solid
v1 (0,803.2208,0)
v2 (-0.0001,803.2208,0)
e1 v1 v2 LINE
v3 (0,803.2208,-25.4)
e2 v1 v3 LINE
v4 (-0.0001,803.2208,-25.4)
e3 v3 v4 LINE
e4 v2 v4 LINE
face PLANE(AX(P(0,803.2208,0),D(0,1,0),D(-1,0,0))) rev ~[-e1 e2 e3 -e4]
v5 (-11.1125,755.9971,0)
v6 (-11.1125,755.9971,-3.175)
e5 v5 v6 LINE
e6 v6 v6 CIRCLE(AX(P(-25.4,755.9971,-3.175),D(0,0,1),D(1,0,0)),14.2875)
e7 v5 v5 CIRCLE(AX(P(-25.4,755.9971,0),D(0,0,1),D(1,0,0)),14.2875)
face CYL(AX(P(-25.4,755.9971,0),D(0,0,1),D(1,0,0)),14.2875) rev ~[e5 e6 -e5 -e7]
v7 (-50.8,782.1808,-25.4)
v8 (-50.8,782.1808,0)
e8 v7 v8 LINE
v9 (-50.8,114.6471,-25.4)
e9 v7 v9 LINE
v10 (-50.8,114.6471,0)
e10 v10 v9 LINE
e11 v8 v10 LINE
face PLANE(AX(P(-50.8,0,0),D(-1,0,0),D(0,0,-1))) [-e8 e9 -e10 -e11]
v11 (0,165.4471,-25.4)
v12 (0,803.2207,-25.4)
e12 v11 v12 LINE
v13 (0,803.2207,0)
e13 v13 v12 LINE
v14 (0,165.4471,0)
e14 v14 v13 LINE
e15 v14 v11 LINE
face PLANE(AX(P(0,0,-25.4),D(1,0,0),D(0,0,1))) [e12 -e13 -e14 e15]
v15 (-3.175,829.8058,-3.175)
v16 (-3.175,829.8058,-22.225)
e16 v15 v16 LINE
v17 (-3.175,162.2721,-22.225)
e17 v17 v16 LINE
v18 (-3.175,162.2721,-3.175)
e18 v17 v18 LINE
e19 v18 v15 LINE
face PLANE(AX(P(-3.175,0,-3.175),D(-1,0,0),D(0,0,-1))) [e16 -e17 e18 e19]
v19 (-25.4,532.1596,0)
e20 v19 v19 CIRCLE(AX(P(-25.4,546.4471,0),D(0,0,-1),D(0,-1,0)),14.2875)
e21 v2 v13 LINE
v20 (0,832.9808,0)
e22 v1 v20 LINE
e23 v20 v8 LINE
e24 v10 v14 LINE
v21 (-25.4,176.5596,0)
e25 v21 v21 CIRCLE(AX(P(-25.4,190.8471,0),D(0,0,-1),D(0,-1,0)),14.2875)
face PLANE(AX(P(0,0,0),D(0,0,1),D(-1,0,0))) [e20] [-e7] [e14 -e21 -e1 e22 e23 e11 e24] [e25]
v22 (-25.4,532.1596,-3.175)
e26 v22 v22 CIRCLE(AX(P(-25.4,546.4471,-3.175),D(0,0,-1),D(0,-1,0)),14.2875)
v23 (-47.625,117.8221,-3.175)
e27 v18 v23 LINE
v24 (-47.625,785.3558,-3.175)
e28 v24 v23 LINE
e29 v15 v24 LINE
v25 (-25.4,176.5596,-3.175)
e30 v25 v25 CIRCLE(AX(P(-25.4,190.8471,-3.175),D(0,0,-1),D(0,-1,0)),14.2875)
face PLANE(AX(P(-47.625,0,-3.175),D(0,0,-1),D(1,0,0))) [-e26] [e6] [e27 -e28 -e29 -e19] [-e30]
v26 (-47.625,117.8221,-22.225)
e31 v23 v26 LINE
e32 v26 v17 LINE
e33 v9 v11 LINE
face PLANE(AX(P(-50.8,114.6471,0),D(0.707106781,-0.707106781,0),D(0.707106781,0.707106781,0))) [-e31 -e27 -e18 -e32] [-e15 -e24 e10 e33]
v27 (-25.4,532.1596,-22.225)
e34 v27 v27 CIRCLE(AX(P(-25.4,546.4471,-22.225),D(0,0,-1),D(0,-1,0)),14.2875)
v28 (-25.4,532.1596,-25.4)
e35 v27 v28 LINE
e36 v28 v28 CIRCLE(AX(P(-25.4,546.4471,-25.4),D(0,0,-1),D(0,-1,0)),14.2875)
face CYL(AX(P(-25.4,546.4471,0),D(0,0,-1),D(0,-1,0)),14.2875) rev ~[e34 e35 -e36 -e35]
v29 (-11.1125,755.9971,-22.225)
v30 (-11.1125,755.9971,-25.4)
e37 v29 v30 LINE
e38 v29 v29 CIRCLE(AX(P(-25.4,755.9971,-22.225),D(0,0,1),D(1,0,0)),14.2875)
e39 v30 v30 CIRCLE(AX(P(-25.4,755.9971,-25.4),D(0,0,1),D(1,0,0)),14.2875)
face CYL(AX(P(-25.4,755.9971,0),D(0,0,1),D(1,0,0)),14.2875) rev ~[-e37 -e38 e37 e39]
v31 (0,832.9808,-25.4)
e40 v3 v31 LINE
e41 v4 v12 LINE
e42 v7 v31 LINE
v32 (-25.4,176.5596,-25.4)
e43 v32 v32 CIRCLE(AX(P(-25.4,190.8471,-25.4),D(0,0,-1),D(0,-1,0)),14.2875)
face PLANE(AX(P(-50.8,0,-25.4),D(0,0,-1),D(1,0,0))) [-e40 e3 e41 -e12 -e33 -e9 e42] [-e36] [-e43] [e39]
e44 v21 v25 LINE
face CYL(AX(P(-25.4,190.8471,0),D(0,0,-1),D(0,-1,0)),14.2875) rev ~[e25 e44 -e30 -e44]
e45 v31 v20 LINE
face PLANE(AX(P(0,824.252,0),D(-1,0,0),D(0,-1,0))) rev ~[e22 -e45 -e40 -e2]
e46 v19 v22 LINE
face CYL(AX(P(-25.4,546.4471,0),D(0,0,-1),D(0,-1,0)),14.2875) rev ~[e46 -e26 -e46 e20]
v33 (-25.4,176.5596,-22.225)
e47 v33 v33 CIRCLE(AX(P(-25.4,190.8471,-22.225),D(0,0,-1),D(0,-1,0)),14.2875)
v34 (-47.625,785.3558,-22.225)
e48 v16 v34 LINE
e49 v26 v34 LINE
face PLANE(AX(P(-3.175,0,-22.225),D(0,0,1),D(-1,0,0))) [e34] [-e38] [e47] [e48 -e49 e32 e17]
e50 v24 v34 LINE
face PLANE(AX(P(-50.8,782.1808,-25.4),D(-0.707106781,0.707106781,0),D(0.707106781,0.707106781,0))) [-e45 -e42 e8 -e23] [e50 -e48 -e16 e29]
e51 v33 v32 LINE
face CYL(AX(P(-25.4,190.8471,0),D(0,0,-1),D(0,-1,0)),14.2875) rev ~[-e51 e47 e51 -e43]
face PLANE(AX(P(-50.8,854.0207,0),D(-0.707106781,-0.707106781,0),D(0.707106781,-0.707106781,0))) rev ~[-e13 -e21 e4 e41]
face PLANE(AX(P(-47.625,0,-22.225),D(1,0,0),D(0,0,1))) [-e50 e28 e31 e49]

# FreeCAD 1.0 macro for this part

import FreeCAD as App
import Part
import Sketcher
Q = App.Units.Quantity

doc = App.newDocument("Part")
params = doc.addObject("Spreadsheet::Sheet", "Params")
for row, (alias, value) in enumerate([
    ("sketch1_width", "2 in"),
    ("sketch1_height", "1 in"),
    ("pad1_length", "34.89 in"),
    ("sketch2_width", "2 in"),
    ("pocket1_length", "36 in"),
    ("pocket2_length", "1 in"),
    ("sketch4_width", "2 in"),
    ("pocket3_length", "1 in"),
    ("pocket4_length", "1 in"),
    ("pocket5_length", "1 in"),
    ("sketch7_diameter", "1.125 in"),
    ("hole_diameter", "1.125 in"),
    ("sketch8_diameter", "1.125 in"),
    ("hole2_diameter", "1.125 in"),
    ("sketch9_width", "0.828 in"),
    ("pad2_length", "1 in"),
    ("sketch10_width", "2 in"),
    ("sketch10_width2", "0.828 in"),
    ("pocket6_length", "1 in"),
    ("sketch11_height", "0.828 in"),
    ("sketch12_width", "1.75 in"),
    ("sketch12_height", "0.75 in"),
    ("pocket8_length", "100 in"),
    ("pad3_length", "1 in"),
    ("sketch14_width", "1.75 in"),
    ("sketch14_height", "0.75 in"),
    ("pocket9_length", "100 in"),
    ("sketch15_diameter", "1.125 in"),
    ("pocket10_length", "1 in"),
], start=1):
    params.set(f"A{row}", alias)
    params.set(f"B{row}", "=" + value)
    params.setAlias(f"B{row}", alias)

body = doc.addObject("PartDesign::Body", "Body")

sketch1 = body.newObject("Sketcher::SketchObject", "Sketch")
sketch1.AttachmentSupport = (doc.getObject("XZ_Plane"), [""])
sketch1.MapMode = "FlatFace"
sketch1.addGeometry([
    Part.LineSegment(App.Vector(-50.8, 0, 0), App.Vector(0, 0, 0)),
    Part.LineSegment(App.Vector(0, 0, 0), App.Vector(0, -25.4, 0)),
    Part.LineSegment(App.Vector(0, -25.4, 0), App.Vector(-50.8, -25.4, 0)),
    Part.LineSegment(App.Vector(-50.8, -25.4, 0), App.Vector(-50.8, 0, 0)),
    Part.LineSegment(App.Vector(-47.625, -3.175, 0), App.Vector(-47.625, -22.225, 0)),
    Part.LineSegment(App.Vector(-47.625, -22.225, 0), App.Vector(-3.175, -22.225, 0)),
    Part.LineSegment(App.Vector(-3.175, -22.225, 0), App.Vector(-3.175, -3.175, 0)),
    Part.LineSegment(App.Vector(-3.175, -3.175, 0), App.Vector(-47.625, -3.175, 0)),
], False)
sketch1.addConstraint([
    Sketcher.Constraint("Coincident", 0, 2, 1, 1),
    Sketcher.Constraint("Coincident", 1, 2, 2, 1),
    Sketcher.Constraint("Coincident", 2, 2, 3, 1),
    Sketcher.Constraint("Coincident", 3, 2, 0, 1),
    Sketcher.Constraint("Coincident", 4, 2, 5, 1),
    Sketcher.Constraint("Coincident", 5, 2, 6, 1),
    Sketcher.Constraint("Coincident", 6, 2, 7, 1),
    Sketcher.Constraint("Coincident", 7, 2, 4, 1),
    Sketcher.Constraint("Horizontal", 0),
    Sketcher.Constraint("Vertical", 1),
    Sketcher.Constraint("Horizontal", 2),
    Sketcher.Constraint("Vertical", 3),
    Sketcher.Constraint("Vertical", 4),
    Sketcher.Constraint("Horizontal", 5),
    Sketcher.Constraint("Vertical", 6),
    Sketcher.Constraint("Horizontal", 7),
    Sketcher.Constraint("Coincident", 0, 2, -1, 1),
    Sketcher.Constraint("DistanceX", 0, 1, 0, 2, Q("2 in")),
    Sketcher.Constraint("DistanceY", 1, 2, 1, 1, Q("1 in")),
    Sketcher.Constraint("DistanceX", 5, 2, -1, 1, Q("0.125 in")),
    Sketcher.Constraint("DistanceY", 6, 2, -1, 1, Q("0.125 in")),
    Sketcher.Constraint("DistanceX", 2, 2, 4, 2, Q("0.125 in")),
    Sketcher.Constraint("DistanceY", 2, 2, 4, 2, Q("0.125 in")),
])
sketch1.setExpression("Constraints[17]", "Params.sketch1_width")
sketch1.setExpression("Constraints[18]", "Params.sketch1_height")
pad1 = body.newObject("PartDesign::Pad", "Pad")
pad1.Profile = sketch1
pad1.setExpression("Length", "Params.pad1_length")
pad1.Reversed = True

sketch2 = body.newObject("Sketcher::SketchObject", "Sketch001")
sketch2.AttachmentSupport = (doc.getObject("XY_Plane"), [""])
sketch2.MapMode = "FlatFace"
sketch2.addGeometry([
    Part.LineSegment(App.Vector(0, 0, 0), App.Vector(-50.8, 56.4191, 0)),
    Part.LineSegment(App.Vector(-50.8, 56.4191, 0), App.Vector(-50.8, 0, 0)),
    Part.LineSegment(App.Vector(-50.8, 0, 0), App.Vector(0, 0, 0)),
], False)
sketch2.addConstraint([
    Sketcher.Constraint("Coincident", 0, 2, 1, 1),
    Sketcher.Constraint("Coincident", 1, 2, 2, 1),
    Sketcher.Constraint("Coincident", 2, 2, 0, 1),
    Sketcher.Constraint("Vertical", 1),
    Sketcher.Constraint("Horizontal", 2),
    Sketcher.Constraint("Coincident", 2, 2, -1, 1),
    Sketcher.Constraint("DistanceX", 2, 1, 2, 2, Q("2 in")),
    Sketcher.Constraint("Angle", 0, Q("132 deg")),
])
sketch2.setExpression("Constraints[6]", "Params.sketch2_width")
pocket1 = body.newObject("PartDesign::Pocket", "Pocket")
pocket1.Profile = sketch2
pocket1.setExpression("Length", "Params.pocket1_length")

sketch3 = body.newObject("Sketcher::SketchObject", "Sketch002")
sketch3.AttachmentSupport = (doc.getObject("XY_Plane"), [""])
sketch3.MapMode = "FlatFace"
sketch3.addGeometry([
    Part.LineSegment(App.Vector(0, 107.2191, 0), App.Vector(-50.8, 56.4191, 0)),
    Part.LineSegment(App.Vector(-50.8, 56.4191, 0), App.Vector(0, 0, 0)),
    Part.LineSegment(App.Vector(0, 0, 0), App.Vector(0, 107.2191, 0)),
], False)
sketch3.addConstraint([
    Sketcher.Constraint("Coincident", 0, 2, 1, 1),
    Sketcher.Constraint("Coincident", 1, 2, 2, 1),
    Sketcher.Constraint("Coincident", 2, 2, 0, 1),
    Sketcher.Constraint("Vertical", 2),
    Sketcher.Constraint("Coincident", 1, 2, -1, 1),
    Sketcher.Constraint("DistanceX", 0, 2, -1, 1, Q("2 in")),
    Sketcher.Constraint("Angle", 0, Q("-135 deg")),
    Sketcher.Constraint("Angle", 1, Q("-48 deg")),
])
pocket2 = body.newObject("PartDesign::Pocket", "Pocket001")
pocket2.Profile = sketch3
pocket2.setExpression("Length", "Params.pocket2_length")

sketch4 = body.newObject("Sketcher::SketchObject", "Sketch003")
sketch4.AttachmentSupport = (doc.getObject("XY_Plane"), [""])
sketch4.MapMode = "FlatFace"
sketch4.addGeometry([
    Part.LineSegment(App.Vector(0, 886.206, 0), App.Vector(-50.8, 886.206, 0)),
    Part.LineSegment(App.Vector(-50.8, 886.206, 0), App.Vector(0, 835.406, 0)),
    Part.LineSegment(App.Vector(0, 835.406, 0), App.Vector(0, 886.206, 0)),
], False)
sketch4.addConstraint([
    Sketcher.Constraint("Coincident", 0, 2, 1, 1),
    Sketcher.Constraint("Coincident", 1, 2, 2, 1),
    Sketcher.Constraint("Coincident", 2, 2, 0, 1),
    Sketcher.Constraint("Horizontal", 0),
    Sketcher.Constraint("Vertical", 2),
    Sketcher.Constraint("PointOnObject", 1, 2, -2),
    Sketcher.Constraint("Equal", 0, 2),
    Sketcher.Constraint("DistanceX", 0, 2, 0, 1, Q("2 in")),
    Sketcher.Constraint("DistanceY", -1, 1, 0, 2, Q("34.89 in")),
])
sketch4.setExpression("Constraints[7]", "Params.sketch4_width")
pocket3 = body.newObject("PartDesign::Pocket", "Pocket002")
pocket3.Profile = sketch4
pocket3.setExpression("Length", "Params.pocket3_length")

sketch5 = body.newObject("Sketcher::SketchObject", "Sketch004")
sketch5.AttachmentSupport = (doc.getObject("XY_Plane"), [""])
sketch5.MapMode = "FlatFace"
sketch5.addGeometry([
    Part.LineSegment(App.Vector(0, 803.2207, 0), App.Vector(0, 835.406, 0)),
    Part.LineSegment(App.Vector(0, 835.406, 0), App.Vector(-50.8, 886.206, 0)),
    Part.LineSegment(App.Vector(-50.8, 886.206, 0), App.Vector(-50.8, 854.0207, 0)),
    Part.LineSegment(App.Vector(-50.8, 854.0207, 0), App.Vector(0, 803.2207, 0)),
], False)
sketch5.addConstraint([
    Sketcher.Constraint("Coincident", 0, 2, 1, 1),
    Sketcher.Constraint("Coincident", 1, 2, 2, 1),
    Sketcher.Constraint("Coincident", 2, 2, 3, 1),
    Sketcher.Constraint("Coincident", 3, 2, 0, 1),
    Sketcher.Constraint("Vertical", 0),
    Sketcher.Constraint("Vertical", 2),
    Sketcher.Constraint("PointOnObject", 0, 2, -2),
    Sketcher.Constraint("Parallel", 1, 3),
    Sketcher.Constraint("DistanceX", 1, 2, -1, 1, Q("2 in")),
    Sketcher.Constraint("Angle", 1, Q("135 deg")),
    Sketcher.Constraint("DistanceY", -1, 1, 0, 2, Q("32.89 in")),
    Sketcher.Constraint("DistanceY", 0, 1, 0, 2, Q("32.1853 mm")),
])
pocket4 = body.newObject("PartDesign::Pocket", "Pocket003")
pocket4.Profile = sketch5
pocket4.setExpression("Length", "Params.pocket4_length")

sketch6 = body.newObject("Sketcher::SketchObject", "Sketch005")
sketch6.AttachmentSupport = (doc.getObject("XY_Plane"), [""])
sketch6.MapMode = "FlatFace"
sketch6.addGeometry([
    Part.LineSegment(App.Vector(0, 107.2191, 0), App.Vector(0, 165.4471, 0)),
    Part.LineSegment(App.Vector(0, 165.4471, 0), App.Vector(-50.8, 114.6471, 0)),
    Part.LineSegment(App.Vector(-50.8, 114.6471, 0), App.Vector(-50.8, 56.4191, 0)),
    Part.LineSegment(App.Vector(-50.8, 56.4191, 0), App.Vector(0, 107.2191, 0)),
], False)
sketch6.addConstraint([
    Sketcher.Constraint("Coincident", 0, 2, 1, 1),
    Sketcher.Constraint("Coincident", 1, 2, 2, 1),
    Sketcher.Constraint("Coincident", 2, 2, 3, 1),
    Sketcher.Constraint("Coincident", 3, 2, 0, 1),
    Sketcher.Constraint("Vertical", 0),
    Sketcher.Constraint("Vertical", 2),
    Sketcher.Constraint("PointOnObject", 0, 2, -2),
    Sketcher.Constraint("Parallel", 1, 3),
    Sketcher.Constraint("DistanceX", 1, 2, -1, 1, Q("2 in")),
    Sketcher.Constraint("Angle", 1, Q("-135 deg")),
    Sketcher.Constraint("DistanceY", 0, 1, 0, 2, Q("58.228 mm")),
    Sketcher.Constraint("DistanceY", -1, 1, 0, 2, Q("165.447 mm")),
])
pocket5 = body.newObject("PartDesign::Pocket", "Pocket004")
pocket5.Profile = sketch6
pocket5.setExpression("Length", "Params.pocket5_length")

sketch7 = body.newObject("Sketcher::SketchObject", "Sketch006")
sketch7.AttachmentSupport = (doc.getObject("XY_Plane"), [""])
sketch7.MapMode = "FlatFace"
sketch7.addGeometry(Part.Circle(App.Vector(-25.4, 190.8471, 0), App.Vector(0, 0, 1), 14.2875), False)
sketch7.addConstraint([
    Sketcher.Constraint("Diameter", 0, Q("1.125 in")),
    Sketcher.Constraint("DistanceX", 0, 3, -1, 1, Q("1 in")),
    Sketcher.Constraint("DistanceY", -1, 1, 0, 3, Q("190.847 mm")),
])
sketch7.setExpression("Constraints[0]", "Params.sketch7_diameter")
doc.recompute()
hole = body.newObject("PartDesign::Hole", "Hole")
hole.Profile = sketch7
hole.ThreadType = "None"
hole.setExpression("Diameter", "Params.hole_diameter")
hole.DepthType = "ThroughAll"

sketch8 = body.newObject("Sketcher::SketchObject", "Sketch007")
sketch8.AttachmentSupport = (doc.getObject("XY_Plane"), [""])
sketch8.MapMode = "FlatFace"
sketch8.addGeometry(Part.Circle(App.Vector(-25.4, 546.4471, 0), App.Vector(0, 0, 1), 14.2875), False)
sketch8.addConstraint([
    Sketcher.Constraint("Diameter", 0, Q("1.125 in")),
    Sketcher.Constraint("DistanceX", 0, 3, -1, 1, Q("1 in")),
    Sketcher.Constraint("DistanceY", -1, 1, 0, 3, Q("546.447 mm")),
])
sketch8.setExpression("Constraints[0]", "Params.sketch8_diameter")
doc.recompute()
hole2 = body.newObject("PartDesign::Hole", "Hole001")
hole2.Profile = sketch8
hole2.ThreadType = "None"
hole2.setExpression("Diameter", "Params.hole2_diameter")
hole2.DepthType = "ThroughAll"

sketch9 = body.newObject("Sketcher::SketchObject", "Sketch008")
sketch9.AttachmentSupport = (doc.getObject("XY_Plane"), [""])
sketch9.MapMode = "FlatFace"
sketch9.addGeometry([
    Part.LineSegment(App.Vector(-21.0312, 803.2208, 0), App.Vector(0, 803.2208, 0)),
    Part.LineSegment(App.Vector(0, 803.2208, 0), App.Vector(0, 824.252, 0)),
    Part.LineSegment(App.Vector(0, 824.252, 0), App.Vector(-21.0312, 803.2208, 0)),
], False)
sketch9.addConstraint([
    Sketcher.Constraint("Coincident", 0, 2, 1, 1),
    Sketcher.Constraint("Coincident", 1, 2, 2, 1),
    Sketcher.Constraint("Coincident", 2, 2, 0, 1),
    Sketcher.Constraint("Horizontal", 0),
    Sketcher.Constraint("Vertical", 1),
    Sketcher.Constraint("PointOnObject", 0, 2, -2),
    Sketcher.Constraint("Equal", 0, 1),
    Sketcher.Constraint("DistanceX", 0, 1, 0, 2, Q("0.828 in")),
    Sketcher.Constraint("DistanceY", -1, 1, 0, 2, Q("803.2208 mm")),
])
sketch9.setExpression("Constraints[7]", "Params.sketch9_width")
pad2 = body.newObject("PartDesign::Pad", "Pad001")
pad2.Profile = sketch9
pad2.setExpression("Length", "Params.pad2_length")
pad2.Reversed = True

sketch10 = body.newObject("Sketcher::SketchObject", "Sketch009")
sketch10.AttachmentSupport = (doc.getObject("XY_Plane"), [""])
sketch10.MapMode = "FlatFace"
sketch10.addGeometry([
    Part.LineSegment(App.Vector(-50.8, 854.0208, 0), App.Vector(-50.8, 773.452, 0)),
    Part.LineSegment(App.Vector(-50.8, 773.452, 0), App.Vector(-21.0312, 803.2208, 0)),
    Part.LineSegment(App.Vector(-21.0312, 803.2208, 0), App.Vector(-21.0312, 824.252, 0)),
    Part.LineSegment(App.Vector(-21.0312, 824.252, 0), App.Vector(0, 824.252, 0)),
    Part.LineSegment(App.Vector(0, 824.252, 0), App.Vector(0, 854.0208, 0)),
    Part.LineSegment(App.Vector(0, 854.0208, 0), App.Vector(-50.8, 854.0208, 0)),
], False)
sketch10.addConstraint([
    Sketcher.Constraint("Coincident", 0, 2, 1, 1),
    Sketcher.Constraint("Coincident", 1, 2, 2, 1),
    Sketcher.Constraint("Coincident", 2, 2, 3, 1),
    Sketcher.Constraint("Coincident", 3, 2, 4, 1),
    Sketcher.Constraint("Coincident", 4, 2, 5, 1),
    Sketcher.Constraint("Coincident", 5, 2, 0, 1),
    Sketcher.Constraint("Vertical", 0),
    Sketcher.Constraint("Vertical", 2),
    Sketcher.Constraint("Horizontal", 3),
    Sketcher.Constraint("Vertical", 4),
    Sketcher.Constraint("Horizontal", 5),
    Sketcher.Constraint("PointOnObject", 3, 2, -2),
    Sketcher.Constraint("Equal", 3, 2),
    Sketcher.Constraint("DistanceX", 5, 2, 5, 1, Q("2 in")),
    Sketcher.Constraint("DistanceY", 0, 2, 2, 2, Q("2 in")),
    Sketcher.Constraint("DistanceY", 1, 2, 4, 2, Q("2 in")),
    Sketcher.Constraint("DistanceX", 3, 1, 3, 2, Q("0.828 in")),
    Sketcher.Constraint("DistanceY", -1, 1, 0, 2, Q("773.452 mm")),
])
sketch10.setExpression("Constraints[13]", "Params.sketch10_width")
sketch10.setExpression("Constraints[16]", "Params.sketch10_width2")
pocket6 = body.newObject("PartDesign::Pocket", "Pocket005")
pocket6.Profile = sketch10
pocket6.setExpression("Length", "Params.pocket6_length")

sketch11 = body.newObject("Sketcher::SketchObject", "Sketch010")
sketch11.AttachmentSupport = (doc.getObject("XY_Plane"), [""])
sketch11.MapMode = "FlatFace"
sketch11.AttachmentOffset = App.Placement(App.Vector(0, 0, -1 * 25.4), App.Rotation())
sketch11.addGeometry([
    Part.LineSegment(App.Vector(-10.5156, 813.7364, 0), App.Vector(-21.0312, 803.2208, 0)),
    Part.LineSegment(App.Vector(-21.0312, 803.2208, 0), App.Vector(-21.0312, 824.252, 0)),
    Part.LineSegment(App.Vector(-21.0312, 824.252, 0), App.Vector(-10.5156, 813.7364, 0)),
], False)
sketch11.addConstraint([
    Sketcher.Constraint("Coincident", 0, 2, 1, 1),
    Sketcher.Constraint("Coincident", 1, 2, 2, 1),
    Sketcher.Constraint("Coincident", 2, 2, 0, 1),
    Sketcher.Constraint("Vertical", 1),
    Sketcher.Constraint("Perpendicular", 0, 2),
    Sketcher.Constraint("Equal", 0, 2),
    Sketcher.Constraint("DistanceY", 1, 1, 1, 2, Q("0.828 in")),
    Sketcher.Constraint("DistanceX", 0, 2, -1, 1, Q("0.828 in")),
    Sketcher.Constraint("DistanceY", -1, 1, 0, 2, Q("803.2208 mm")),
])
sketch11.setExpression("Constraints[6]", "Params.sketch11_height")
pocket7 = body.newObject("PartDesign::Pocket", "Pocket006")
pocket7.Profile = sketch11
pocket7.Type = "ThroughAll"
pocket7.Reversed = True

sketch12 = body.newObject("Sketcher::SketchObject", "Sketch011")
sketch12.AttachmentSupport = (doc.getObject("XZ_Plane"), [""])
sketch12.MapMode = "FlatFace"
sketch12.addGeometry([
    Part.LineSegment(App.Vector(-3.175, -22.225, 0), App.Vector(-47.625, -22.225, 0)),
    Part.LineSegment(App.Vector(-47.625, -22.225, 0), App.Vector(-47.625, -3.175, 0)),
    Part.LineSegment(App.Vector(-47.625, -3.175, 0), App.Vector(-3.175, -3.175, 0)),
    Part.LineSegment(App.Vector(-3.175, -3.175, 0), App.Vector(-3.175, -22.225, 0)),
], False)
sketch12.addConstraint([
    Sketcher.Constraint("Coincident", 0, 2, 1, 1),
    Sketcher.Constraint("Coincident", 1, 2, 2, 1),
    Sketcher.Constraint("Coincident", 2, 2, 3, 1),
    Sketcher.Constraint("Coincident", 3, 2, 0, 1),
    Sketcher.Constraint("Horizontal", 0),
    Sketcher.Constraint("Vertical", 1),
    Sketcher.Constraint("Horizontal", 2),
    Sketcher.Constraint("Vertical", 3),
    Sketcher.Constraint("DistanceX", 0, 2, 0, 1, Q("1.75 in")),
    Sketcher.Constraint("DistanceY", 1, 1, 1, 2, Q("0.75 in")),
    Sketcher.Constraint("DistanceX", 0, 2, -1, 1, Q("1.875 in")),
    Sketcher.Constraint("DistanceY", 0, 2, -1, 1, Q("0.875 in")),
])
sketch12.setExpression("Constraints[8]", "Params.sketch12_width")
sketch12.setExpression("Constraints[9]", "Params.sketch12_height")
pocket8 = body.newObject("PartDesign::Pocket", "Pocket007")
pocket8.Profile = sketch12
pocket8.setExpression("Length", "Params.pocket8_length")

sketch13 = body.newObject("Sketcher::SketchObject", "Sketch012")
sketch13.AttachmentSupport = (doc.getObject("XY_Plane"), [""])
sketch13.MapMode = "FlatFace"
sketch13.AttachmentOffset = App.Placement(App.Vector(0, 0, -1 * 25.4), App.Rotation())
sketch13.addGeometry([
    Part.LineSegment(App.Vector(-50.8, 773.452, 0), App.Vector(-50.8, 782.1808, 0)),
    Part.LineSegment(App.Vector(-50.8, 782.1808, 0), App.Vector(0, 832.9808, 0)),
    Part.LineSegment(App.Vector(0, 832.9808, 0), App.Vector(0, 824.252, 0)),
    Part.LineSegment(App.Vector(0, 824.252, 0), App.Vector(-50.8, 773.452, 0)),
], False)
sketch13.addConstraint([
    Sketcher.Constraint("Coincident", 0, 2, 1, 1),
    Sketcher.Constraint("Coincident", 1, 2, 2, 1),
    Sketcher.Constraint("Coincident", 2, 2, 3, 1),
    Sketcher.Constraint("Coincident", 3, 2, 0, 1),
    Sketcher.Constraint("Vertical", 0),
    Sketcher.Constraint("Vertical", 2),
    Sketcher.Constraint("PointOnObject", 1, 2, -2),
    Sketcher.Constraint("Parallel", 1, 3),
    Sketcher.Constraint("DistanceX", 0, 2, -1, 1, Q("2 in")),
    Sketcher.Constraint("Angle", 1, Q("45 deg")),
    Sketcher.Constraint("DistanceY", 0, 1, 0, 2, Q("8.7288 mm")),
    Sketcher.Constraint("DistanceY", -1, 1, 0, 2, Q("782.1808 mm")),
])
pad3 = body.newObject("PartDesign::Pad", "Pad002")
pad3.Profile = sketch13
pad3.setExpression("Length", "Params.pad3_length")

sketch14 = body.newObject("Sketcher::SketchObject", "Sketch013")
sketch14.AttachmentSupport = (doc.getObject("XZ_Plane"), [""])
sketch14.MapMode = "FlatFace"
sketch14.addGeometry([
    Part.LineSegment(App.Vector(-47.625, -22.225, 0), App.Vector(-47.625, -3.175, 0)),
    Part.LineSegment(App.Vector(-47.625, -3.175, 0), App.Vector(-3.175, -3.175, 0)),
    Part.LineSegment(App.Vector(-3.175, -3.175, 0), App.Vector(-3.175, -22.225, 0)),
    Part.LineSegment(App.Vector(-3.175, -22.225, 0), App.Vector(-47.625, -22.225, 0)),
], False)
sketch14.addConstraint([
    Sketcher.Constraint("Coincident", 0, 2, 1, 1),
    Sketcher.Constraint("Coincident", 1, 2, 2, 1),
    Sketcher.Constraint("Coincident", 2, 2, 3, 1),
    Sketcher.Constraint("Coincident", 3, 2, 0, 1),
    Sketcher.Constraint("Vertical", 0),
    Sketcher.Constraint("Horizontal", 1),
    Sketcher.Constraint("Vertical", 2),
    Sketcher.Constraint("Horizontal", 3),
    Sketcher.Constraint("DistanceX", 1, 1, 1, 2, Q("1.75 in")),
    Sketcher.Constraint("DistanceY", 0, 1, 0, 2, Q("0.75 in")),
    Sketcher.Constraint("DistanceX", 0, 2, -1, 1, Q("1.875 in")),
    Sketcher.Constraint("DistanceY", 0, 2, -1, 1, Q("0.125 in")),
])
sketch14.setExpression("Constraints[8]", "Params.sketch14_width")
sketch14.setExpression("Constraints[9]", "Params.sketch14_height")
pocket9 = body.newObject("PartDesign::Pocket", "Pocket008")
pocket9.Profile = sketch14
pocket9.setExpression("Length", "Params.pocket9_length")

sketch15 = body.newObject("Sketcher::SketchObject", "Sketch014")
sketch15.AttachmentSupport = (doc.getObject("XY_Plane"), [""])
sketch15.MapMode = "FlatFace"
sketch15.addGeometry(Part.Circle(App.Vector(-25.4, 755.9971, 0), App.Vector(0, 0, 1), 14.2875), False)
sketch15.addConstraint([
    Sketcher.Constraint("Diameter", 0, Q("1.125 in")),
    Sketcher.Constraint("DistanceX", 0, 3, -1, 1, Q("1 in")),
    Sketcher.Constraint("DistanceY", -1, 1, 0, 3, Q("755.997 mm")),
])
sketch15.setExpression("Constraints[0]", "Params.sketch15_diameter")
pocket10 = body.newObject("PartDesign::Pocket", "Pocket009")
pocket10.Profile = sketch15
pocket10.setExpression("Length", "Params.pocket10_length")

doc.recompute()
